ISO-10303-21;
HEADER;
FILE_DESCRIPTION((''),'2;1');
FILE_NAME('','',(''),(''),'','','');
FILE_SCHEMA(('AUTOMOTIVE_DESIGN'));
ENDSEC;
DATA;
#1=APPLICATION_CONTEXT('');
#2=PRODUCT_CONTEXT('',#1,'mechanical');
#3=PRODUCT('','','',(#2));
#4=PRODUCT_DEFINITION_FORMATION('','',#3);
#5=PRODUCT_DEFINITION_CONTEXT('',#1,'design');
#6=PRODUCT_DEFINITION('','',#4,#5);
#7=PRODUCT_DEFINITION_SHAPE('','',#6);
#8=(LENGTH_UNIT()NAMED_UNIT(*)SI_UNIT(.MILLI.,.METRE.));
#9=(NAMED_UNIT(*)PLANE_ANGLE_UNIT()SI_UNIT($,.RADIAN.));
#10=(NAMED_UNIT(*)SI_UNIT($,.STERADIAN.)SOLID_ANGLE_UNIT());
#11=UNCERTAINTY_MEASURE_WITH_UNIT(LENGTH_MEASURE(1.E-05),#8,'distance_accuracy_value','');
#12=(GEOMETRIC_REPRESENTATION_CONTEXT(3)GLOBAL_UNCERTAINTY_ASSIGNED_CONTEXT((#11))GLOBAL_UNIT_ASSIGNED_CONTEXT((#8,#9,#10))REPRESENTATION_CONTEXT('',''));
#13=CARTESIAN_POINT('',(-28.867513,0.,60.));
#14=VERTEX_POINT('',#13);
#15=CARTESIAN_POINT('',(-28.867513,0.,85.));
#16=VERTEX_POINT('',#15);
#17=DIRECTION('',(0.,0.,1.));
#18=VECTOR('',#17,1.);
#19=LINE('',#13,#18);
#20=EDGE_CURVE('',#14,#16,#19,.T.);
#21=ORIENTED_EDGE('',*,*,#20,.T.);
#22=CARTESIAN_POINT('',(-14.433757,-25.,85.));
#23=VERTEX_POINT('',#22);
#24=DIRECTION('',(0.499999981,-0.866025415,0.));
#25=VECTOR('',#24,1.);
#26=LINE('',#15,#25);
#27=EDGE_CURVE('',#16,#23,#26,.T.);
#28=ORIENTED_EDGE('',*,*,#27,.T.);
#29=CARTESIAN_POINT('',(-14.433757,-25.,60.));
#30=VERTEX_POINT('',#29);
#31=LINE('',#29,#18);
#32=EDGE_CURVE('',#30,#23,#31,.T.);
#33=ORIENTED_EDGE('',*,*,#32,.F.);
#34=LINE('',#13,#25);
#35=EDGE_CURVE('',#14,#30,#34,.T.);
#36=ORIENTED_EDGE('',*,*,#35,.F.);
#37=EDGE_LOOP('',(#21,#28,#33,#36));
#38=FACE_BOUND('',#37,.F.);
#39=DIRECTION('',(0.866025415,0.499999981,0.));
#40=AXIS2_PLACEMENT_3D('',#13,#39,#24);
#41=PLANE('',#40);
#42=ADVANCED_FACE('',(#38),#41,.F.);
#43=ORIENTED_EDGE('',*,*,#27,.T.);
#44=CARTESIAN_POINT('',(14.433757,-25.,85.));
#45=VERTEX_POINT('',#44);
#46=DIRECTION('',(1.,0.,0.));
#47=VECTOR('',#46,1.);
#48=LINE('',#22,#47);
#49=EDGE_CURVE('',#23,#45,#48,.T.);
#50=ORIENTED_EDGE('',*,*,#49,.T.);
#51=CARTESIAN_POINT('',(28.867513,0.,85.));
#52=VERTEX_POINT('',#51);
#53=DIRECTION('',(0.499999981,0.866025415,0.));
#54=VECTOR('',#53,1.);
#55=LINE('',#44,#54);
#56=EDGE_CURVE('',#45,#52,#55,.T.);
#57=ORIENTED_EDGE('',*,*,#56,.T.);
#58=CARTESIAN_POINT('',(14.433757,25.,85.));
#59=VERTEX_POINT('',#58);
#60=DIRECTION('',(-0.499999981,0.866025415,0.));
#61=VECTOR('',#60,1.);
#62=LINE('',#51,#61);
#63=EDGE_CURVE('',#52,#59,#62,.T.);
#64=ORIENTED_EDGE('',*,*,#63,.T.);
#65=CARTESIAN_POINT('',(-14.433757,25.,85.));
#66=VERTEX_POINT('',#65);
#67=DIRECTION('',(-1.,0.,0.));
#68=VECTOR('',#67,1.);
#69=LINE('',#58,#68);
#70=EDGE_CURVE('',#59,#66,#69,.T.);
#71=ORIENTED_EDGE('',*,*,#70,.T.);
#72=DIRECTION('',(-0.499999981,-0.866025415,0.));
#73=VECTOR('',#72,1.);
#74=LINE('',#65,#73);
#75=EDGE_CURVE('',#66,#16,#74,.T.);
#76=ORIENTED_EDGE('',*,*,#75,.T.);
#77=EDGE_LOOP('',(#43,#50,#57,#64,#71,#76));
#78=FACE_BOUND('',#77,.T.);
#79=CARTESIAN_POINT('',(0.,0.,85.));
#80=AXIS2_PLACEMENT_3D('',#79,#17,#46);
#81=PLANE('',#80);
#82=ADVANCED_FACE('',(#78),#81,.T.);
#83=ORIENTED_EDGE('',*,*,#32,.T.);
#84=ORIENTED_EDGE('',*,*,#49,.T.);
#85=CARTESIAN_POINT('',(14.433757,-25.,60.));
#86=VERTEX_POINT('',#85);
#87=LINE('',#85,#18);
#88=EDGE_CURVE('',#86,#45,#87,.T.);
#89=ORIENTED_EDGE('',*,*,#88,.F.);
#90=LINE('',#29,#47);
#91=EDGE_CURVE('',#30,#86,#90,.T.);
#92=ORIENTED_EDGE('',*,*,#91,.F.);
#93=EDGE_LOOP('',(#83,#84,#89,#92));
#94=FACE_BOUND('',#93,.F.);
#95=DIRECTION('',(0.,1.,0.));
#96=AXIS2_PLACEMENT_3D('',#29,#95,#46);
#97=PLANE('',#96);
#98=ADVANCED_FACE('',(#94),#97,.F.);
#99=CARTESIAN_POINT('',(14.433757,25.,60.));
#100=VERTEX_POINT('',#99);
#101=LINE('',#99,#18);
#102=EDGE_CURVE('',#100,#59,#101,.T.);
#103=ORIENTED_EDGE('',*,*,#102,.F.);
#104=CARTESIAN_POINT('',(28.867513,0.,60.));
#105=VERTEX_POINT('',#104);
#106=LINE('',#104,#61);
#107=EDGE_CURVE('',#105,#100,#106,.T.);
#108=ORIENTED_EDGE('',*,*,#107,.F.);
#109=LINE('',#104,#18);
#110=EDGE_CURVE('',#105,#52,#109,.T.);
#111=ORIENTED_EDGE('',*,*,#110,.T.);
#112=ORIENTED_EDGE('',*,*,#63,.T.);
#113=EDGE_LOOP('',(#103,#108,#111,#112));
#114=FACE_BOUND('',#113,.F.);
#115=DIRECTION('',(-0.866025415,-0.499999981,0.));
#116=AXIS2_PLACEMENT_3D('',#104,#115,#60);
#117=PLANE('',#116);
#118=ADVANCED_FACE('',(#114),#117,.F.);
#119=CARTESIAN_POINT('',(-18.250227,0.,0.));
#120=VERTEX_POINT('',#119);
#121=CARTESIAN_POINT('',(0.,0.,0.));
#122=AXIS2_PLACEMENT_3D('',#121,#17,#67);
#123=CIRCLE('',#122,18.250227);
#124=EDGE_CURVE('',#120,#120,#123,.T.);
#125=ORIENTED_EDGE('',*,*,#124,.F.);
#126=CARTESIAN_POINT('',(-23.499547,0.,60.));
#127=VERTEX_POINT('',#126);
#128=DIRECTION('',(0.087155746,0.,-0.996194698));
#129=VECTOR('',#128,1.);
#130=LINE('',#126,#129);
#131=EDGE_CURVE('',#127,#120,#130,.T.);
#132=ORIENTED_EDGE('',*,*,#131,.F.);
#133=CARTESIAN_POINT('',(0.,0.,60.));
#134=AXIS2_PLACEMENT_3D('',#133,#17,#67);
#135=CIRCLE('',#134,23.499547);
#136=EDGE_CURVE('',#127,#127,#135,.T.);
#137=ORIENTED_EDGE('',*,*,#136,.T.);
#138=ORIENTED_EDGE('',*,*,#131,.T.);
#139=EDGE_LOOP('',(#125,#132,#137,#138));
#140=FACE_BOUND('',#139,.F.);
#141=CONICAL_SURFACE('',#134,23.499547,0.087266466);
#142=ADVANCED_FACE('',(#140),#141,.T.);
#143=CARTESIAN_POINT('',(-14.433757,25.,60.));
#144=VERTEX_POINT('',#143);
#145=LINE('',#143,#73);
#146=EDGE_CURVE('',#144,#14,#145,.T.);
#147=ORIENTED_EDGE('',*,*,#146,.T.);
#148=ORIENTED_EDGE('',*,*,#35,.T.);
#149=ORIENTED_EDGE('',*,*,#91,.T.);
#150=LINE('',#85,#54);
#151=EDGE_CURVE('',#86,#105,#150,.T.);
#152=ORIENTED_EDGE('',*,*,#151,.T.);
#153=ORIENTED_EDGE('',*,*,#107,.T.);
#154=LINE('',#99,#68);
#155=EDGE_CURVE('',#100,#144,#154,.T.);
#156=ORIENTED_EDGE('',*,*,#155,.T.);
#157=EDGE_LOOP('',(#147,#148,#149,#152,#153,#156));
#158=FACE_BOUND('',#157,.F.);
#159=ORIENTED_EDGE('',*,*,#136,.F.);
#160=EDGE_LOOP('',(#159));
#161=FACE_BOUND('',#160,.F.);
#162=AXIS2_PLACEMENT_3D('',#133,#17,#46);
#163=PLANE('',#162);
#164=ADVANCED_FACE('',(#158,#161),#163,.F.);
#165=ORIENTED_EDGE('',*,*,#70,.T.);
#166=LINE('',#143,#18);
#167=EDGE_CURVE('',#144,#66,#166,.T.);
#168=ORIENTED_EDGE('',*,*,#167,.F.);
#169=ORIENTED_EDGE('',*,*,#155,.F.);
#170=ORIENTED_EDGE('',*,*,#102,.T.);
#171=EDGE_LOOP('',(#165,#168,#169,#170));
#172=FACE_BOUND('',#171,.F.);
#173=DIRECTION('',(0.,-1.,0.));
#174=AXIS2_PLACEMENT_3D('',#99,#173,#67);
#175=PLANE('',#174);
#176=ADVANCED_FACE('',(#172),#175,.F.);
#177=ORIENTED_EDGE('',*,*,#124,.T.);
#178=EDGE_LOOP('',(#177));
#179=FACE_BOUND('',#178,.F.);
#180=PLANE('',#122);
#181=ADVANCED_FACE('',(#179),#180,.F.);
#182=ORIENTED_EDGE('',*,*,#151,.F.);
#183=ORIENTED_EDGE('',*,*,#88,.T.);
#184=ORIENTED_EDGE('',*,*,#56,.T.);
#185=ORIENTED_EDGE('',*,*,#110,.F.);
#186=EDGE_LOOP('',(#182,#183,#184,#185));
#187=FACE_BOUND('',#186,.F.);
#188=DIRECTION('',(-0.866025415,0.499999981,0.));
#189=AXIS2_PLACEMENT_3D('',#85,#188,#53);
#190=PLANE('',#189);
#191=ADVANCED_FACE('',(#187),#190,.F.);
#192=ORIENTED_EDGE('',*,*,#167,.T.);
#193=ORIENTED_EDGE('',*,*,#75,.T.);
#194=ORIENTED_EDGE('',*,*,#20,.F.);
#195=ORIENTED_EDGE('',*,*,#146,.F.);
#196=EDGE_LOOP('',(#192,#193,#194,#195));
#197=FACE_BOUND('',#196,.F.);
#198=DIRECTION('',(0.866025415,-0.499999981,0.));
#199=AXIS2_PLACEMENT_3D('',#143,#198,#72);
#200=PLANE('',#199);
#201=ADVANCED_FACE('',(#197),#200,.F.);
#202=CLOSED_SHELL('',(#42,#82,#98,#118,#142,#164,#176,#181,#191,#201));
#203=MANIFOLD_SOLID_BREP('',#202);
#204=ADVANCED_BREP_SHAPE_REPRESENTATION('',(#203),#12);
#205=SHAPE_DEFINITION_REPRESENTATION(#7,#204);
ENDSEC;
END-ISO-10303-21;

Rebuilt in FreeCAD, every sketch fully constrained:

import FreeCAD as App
import Part
import Sketcher
Q = App.Units.Quantity

doc = App.newDocument("Part")
body = doc.addObject("PartDesign::Body", "Body")

# Sketch on XZ plane
sketch1 = body.newObject("Sketcher::SketchObject", "Sketch")
sketch1.AttachmentSupport = (doc.getObject("XZ_Plane"), [""])
sketch1.MapMode = "FlatFace"
sketch1.addGeometry([
    Part.LineSegment(App.Vector(-18.250227, 0, 0), App.Vector(0, 0, 0)),
    Part.LineSegment(App.Vector(0, 0, 0), App.Vector(0, 60, 0)),
    Part.LineSegment(App.Vector(0, 60, 0), App.Vector(-23.499547, 60, 0)),
    Part.LineSegment(App.Vector(-23.499547, 60, 0), App.Vector(-18.250227, 0, 0)),
], False)
sketch1.addConstraint([
    Sketcher.Constraint("Coincident", 0, 2, 1, 1),
    Sketcher.Constraint("Coincident", 1, 2, 2, 1),
    Sketcher.Constraint("Coincident", 2, 2, 3, 1),
    Sketcher.Constraint("Coincident", 3, 2, 0, 1),
    Sketcher.Constraint("Horizontal", 0),
    Sketcher.Constraint("Vertical", 1),
    Sketcher.Constraint("Horizontal", 2),
    Sketcher.Constraint("Coincident", 0, 2, -1, 1),
    Sketcher.Constraint("DistanceY", 1, 1, 1, 2, 60.0),
    Sketcher.Constraint("Angle", 3, Q("-85 deg")),
    Sketcher.Constraint("DistanceX", 0, 1, 0, 2, 18.250227),
])
revolution = body.newObject("PartDesign::Revolution", "Revolution")
revolution.Profile = sketch1
revolution.ReferenceAxis = (sketch1, ["V_Axis"])
revolution.Angle = 360

# Sketch on XY plane
sketch2 = body.newObject("Sketcher::SketchObject", "Sketch001")
sketch2.AttachmentSupport = (doc.getObject("XY_Plane"), [""])
sketch2.MapMode = "FlatFace"
sketch2.AttachmentOffset = App.Placement(App.Vector(0, 0, 60), App.Rotation())
sketch2.addGeometry([
    Part.LineSegment(App.Vector(-14.433757, 25, 0), App.Vector(-28.867513, 0, 0)),  # 0
    Part.LineSegment(App.Vector(-28.867513, 0, 0), App.Vector(-14.433757, -25, 0)),  # 1
    Part.LineSegment(App.Vector(-14.433757, -25, 0), App.Vector(14.433757, -25, 0)),  # 2
    Part.LineSegment(App.Vector(14.433757, -25, 0), App.Vector(28.867513, 0, 0)),  # 3
    Part.LineSegment(App.Vector(28.867513, 0, 0), App.Vector(14.433757, 25, 0)),  # 4
    Part.LineSegment(App.Vector(14.433757, 25, 0), App.Vector(-14.433757, 25, 0)),  # 5
], False)
sketch2.addConstraint([
    Sketcher.Constraint("Coincident", 0, 2, 1, 1),
    Sketcher.Constraint("Coincident", 1, 2, 2, 1),
    Sketcher.Constraint("Coincident", 2, 2, 3, 1),
    Sketcher.Constraint("Coincident", 3, 2, 4, 1),
    Sketcher.Constraint("Coincident", 4, 2, 5, 1),
    Sketcher.Constraint("Coincident", 5, 2, 0, 1),
    Sketcher.Constraint("Horizontal", 2),
    Sketcher.Constraint("Horizontal", 5),
    Sketcher.Constraint("Symmetric", 0, 2, 3, 2, -1, 1),
    Sketcher.Constraint("Symmetric", 1, 2, 4, 2, -1, 1),
    Sketcher.Constraint("PointOnObject", 0, 2, -1),
    Sketcher.Constraint("Parallel", 0, 3),
    Sketcher.Constraint("Vertical", 2, 2, 4, 2),
    Sketcher.Constraint("Angle", 0, Q("-119.999999 deg")),
    Sketcher.Constraint("DistanceY", 1, 2, -1, 1, 25.0),
    Sketcher.Constraint("DistanceX", 2, 1, 2, 2, 28.867514),
])
pad1 = body.newObject("PartDesign::Pad", "Pad")
pad1.Profile = sketch2
pad1.Length = 25

doc.recompute()
